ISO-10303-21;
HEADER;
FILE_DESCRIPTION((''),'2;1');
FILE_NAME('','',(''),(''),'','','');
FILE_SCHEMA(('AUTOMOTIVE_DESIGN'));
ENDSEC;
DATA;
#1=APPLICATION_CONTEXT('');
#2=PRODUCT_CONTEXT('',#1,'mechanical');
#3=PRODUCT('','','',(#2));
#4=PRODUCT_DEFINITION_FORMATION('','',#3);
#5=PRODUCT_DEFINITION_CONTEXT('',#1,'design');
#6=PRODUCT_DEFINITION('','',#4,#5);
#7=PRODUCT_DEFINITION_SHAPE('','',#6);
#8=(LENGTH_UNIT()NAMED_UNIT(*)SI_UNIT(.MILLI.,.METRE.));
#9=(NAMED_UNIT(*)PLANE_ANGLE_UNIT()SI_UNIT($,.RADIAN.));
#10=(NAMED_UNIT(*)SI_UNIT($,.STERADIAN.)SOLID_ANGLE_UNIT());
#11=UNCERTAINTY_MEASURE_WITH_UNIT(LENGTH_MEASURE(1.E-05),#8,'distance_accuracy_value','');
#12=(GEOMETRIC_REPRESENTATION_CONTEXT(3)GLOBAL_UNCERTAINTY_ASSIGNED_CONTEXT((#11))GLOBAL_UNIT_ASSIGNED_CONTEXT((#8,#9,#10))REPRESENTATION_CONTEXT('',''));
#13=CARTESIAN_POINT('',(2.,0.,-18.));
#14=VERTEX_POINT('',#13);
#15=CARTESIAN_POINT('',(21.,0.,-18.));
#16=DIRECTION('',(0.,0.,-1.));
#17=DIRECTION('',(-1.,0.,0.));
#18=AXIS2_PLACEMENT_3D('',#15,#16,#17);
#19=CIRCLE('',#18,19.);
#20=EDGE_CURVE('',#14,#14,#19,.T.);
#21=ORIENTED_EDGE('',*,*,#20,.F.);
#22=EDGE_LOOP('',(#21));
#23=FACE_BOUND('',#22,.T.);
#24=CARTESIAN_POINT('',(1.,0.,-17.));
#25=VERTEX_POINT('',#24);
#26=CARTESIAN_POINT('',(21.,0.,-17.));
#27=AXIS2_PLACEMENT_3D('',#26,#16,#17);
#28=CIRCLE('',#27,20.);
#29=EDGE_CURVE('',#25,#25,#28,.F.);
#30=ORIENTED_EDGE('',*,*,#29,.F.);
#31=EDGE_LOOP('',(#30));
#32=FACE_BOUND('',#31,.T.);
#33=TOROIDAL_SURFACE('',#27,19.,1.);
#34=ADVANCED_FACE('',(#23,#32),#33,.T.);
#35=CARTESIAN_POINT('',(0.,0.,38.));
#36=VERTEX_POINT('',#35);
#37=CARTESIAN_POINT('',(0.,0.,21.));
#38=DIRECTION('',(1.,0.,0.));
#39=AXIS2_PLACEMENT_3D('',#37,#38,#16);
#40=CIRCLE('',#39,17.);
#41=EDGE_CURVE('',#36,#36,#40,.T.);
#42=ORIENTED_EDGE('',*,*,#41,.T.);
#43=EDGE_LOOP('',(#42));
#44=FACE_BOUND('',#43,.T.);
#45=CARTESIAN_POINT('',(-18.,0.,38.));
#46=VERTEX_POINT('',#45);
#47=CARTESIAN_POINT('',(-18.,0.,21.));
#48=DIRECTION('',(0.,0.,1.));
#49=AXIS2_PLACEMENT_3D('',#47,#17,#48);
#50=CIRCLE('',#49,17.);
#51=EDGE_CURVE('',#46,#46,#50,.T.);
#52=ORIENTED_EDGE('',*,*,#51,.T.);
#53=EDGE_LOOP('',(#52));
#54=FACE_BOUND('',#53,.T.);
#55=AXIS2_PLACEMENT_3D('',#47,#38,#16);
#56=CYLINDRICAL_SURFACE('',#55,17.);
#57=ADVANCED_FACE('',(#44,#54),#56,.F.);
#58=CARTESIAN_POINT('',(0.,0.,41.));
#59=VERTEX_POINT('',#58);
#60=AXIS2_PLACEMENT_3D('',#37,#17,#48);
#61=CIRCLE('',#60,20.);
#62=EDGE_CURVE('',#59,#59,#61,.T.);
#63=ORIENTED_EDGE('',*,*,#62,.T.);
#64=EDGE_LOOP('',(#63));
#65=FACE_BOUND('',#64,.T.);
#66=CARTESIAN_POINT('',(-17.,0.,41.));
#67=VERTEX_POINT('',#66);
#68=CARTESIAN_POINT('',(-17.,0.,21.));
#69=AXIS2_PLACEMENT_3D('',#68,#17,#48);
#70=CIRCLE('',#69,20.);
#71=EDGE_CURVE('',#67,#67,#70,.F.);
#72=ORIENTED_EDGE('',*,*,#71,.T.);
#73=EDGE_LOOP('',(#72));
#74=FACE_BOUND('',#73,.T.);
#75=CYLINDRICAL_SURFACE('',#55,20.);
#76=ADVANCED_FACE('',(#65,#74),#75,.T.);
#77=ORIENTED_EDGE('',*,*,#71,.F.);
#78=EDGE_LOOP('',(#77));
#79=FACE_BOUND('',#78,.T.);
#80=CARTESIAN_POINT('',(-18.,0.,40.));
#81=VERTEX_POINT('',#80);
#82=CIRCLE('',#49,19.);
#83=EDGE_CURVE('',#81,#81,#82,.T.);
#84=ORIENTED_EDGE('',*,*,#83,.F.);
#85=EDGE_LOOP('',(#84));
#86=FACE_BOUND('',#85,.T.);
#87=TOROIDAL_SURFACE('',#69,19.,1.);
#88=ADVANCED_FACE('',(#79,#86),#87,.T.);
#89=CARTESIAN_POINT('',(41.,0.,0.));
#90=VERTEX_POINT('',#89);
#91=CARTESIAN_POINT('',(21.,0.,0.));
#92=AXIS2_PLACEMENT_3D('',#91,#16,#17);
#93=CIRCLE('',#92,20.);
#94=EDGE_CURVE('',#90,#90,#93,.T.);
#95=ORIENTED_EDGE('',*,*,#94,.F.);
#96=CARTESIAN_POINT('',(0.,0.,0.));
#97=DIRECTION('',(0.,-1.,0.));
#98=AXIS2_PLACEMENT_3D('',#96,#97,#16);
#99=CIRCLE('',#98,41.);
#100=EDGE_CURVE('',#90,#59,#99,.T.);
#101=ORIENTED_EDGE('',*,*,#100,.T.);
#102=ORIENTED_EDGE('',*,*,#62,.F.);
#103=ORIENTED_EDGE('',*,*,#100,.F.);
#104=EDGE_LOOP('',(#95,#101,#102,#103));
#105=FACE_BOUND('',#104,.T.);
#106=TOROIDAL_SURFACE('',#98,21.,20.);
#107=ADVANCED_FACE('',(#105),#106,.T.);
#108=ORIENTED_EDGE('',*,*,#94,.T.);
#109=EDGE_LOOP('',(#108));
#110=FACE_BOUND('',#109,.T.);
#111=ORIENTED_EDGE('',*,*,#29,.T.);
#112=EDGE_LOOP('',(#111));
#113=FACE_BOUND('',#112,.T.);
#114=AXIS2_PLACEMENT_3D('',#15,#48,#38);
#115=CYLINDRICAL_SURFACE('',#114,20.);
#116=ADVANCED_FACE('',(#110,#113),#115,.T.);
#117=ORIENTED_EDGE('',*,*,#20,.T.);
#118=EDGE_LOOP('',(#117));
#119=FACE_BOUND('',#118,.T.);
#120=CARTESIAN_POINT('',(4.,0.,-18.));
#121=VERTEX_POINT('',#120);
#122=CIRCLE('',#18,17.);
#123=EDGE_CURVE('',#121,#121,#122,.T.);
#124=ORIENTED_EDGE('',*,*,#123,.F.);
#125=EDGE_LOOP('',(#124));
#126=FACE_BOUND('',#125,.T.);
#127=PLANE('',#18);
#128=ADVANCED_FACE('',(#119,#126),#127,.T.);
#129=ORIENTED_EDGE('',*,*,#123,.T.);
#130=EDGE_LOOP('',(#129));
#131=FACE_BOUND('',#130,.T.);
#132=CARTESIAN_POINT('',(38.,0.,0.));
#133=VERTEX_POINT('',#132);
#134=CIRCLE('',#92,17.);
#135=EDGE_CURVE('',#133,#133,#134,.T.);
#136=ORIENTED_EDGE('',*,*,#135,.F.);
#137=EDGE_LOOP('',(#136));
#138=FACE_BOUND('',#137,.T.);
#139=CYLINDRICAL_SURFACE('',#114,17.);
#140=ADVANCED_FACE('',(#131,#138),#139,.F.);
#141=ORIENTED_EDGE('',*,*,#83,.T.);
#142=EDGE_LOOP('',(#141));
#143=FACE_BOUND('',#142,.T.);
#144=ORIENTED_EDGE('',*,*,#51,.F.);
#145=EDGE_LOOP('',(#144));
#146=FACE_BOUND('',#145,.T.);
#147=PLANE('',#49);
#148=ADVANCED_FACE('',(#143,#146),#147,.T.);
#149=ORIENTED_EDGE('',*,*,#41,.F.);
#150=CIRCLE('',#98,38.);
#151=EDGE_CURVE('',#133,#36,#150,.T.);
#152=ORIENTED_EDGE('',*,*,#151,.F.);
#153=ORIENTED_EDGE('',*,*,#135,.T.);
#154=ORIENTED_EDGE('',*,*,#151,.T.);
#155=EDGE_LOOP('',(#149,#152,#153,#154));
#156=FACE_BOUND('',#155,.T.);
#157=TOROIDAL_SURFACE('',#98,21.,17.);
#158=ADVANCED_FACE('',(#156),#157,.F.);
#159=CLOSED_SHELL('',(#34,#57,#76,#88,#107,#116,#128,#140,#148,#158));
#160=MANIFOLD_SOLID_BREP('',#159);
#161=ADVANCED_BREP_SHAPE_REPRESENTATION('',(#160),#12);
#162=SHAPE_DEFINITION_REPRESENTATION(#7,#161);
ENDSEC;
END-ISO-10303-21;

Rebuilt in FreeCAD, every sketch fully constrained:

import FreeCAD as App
import Part
import Sketcher
from FreeCAD import Vector
Q = App.Units.Quantity


def edges_at(feature, points):
    """Names of the edges that pass closest to the given points."""
    edges = feature.Shape.Edges
    near = lambda p: min(range(len(edges)), key=lambda i: edges[i].distToShape(Part.Vertex(*p))[0])
    return sorted({f"Edge{near(p) + 1}" for p in points})

doc = App.newDocument("Part")
body = doc.addObject("PartDesign::Body", "Body")

# Sketch on YZ plane
sketch1 = body.newObject("Sketcher::SketchObject", "Sketch")
sketch1.AttachmentSupport = (doc.getObject("YZ_Plane"), [""])
sketch1.MapMode = "FlatFace"
sketch1.addGeometry([
    Part.Circle(Vector(0, 21, 0), Vector(0, 0, 1), 20),
    Part.Circle(Vector(0, 21, 0), Vector(0, 0, 1), 17),
], False)
sketch1.addConstraint([
    Sketcher.Constraint("Coincident", 1, 3, 0, 3),
    Sketcher.Constraint("PointOnObject", 0, 3, -2),
    Sketcher.Constraint("Diameter", 0, Q("40 mm")),
    Sketcher.Constraint("Diameter", 1, Q("34 mm")),
    Sketcher.Constraint("DistanceY", -1, 1, 0, 3, Q("21 mm")),
])
revolution = body.newObject("PartDesign::Revolution", "Revolution")
revolution.Profile = sketch1
revolution.ReferenceAxis = (sketch1, ["H_Axis"])
revolution.Angle = 90

# Sketch on YZ plane
sketch2 = body.newObject("Sketcher::SketchObject", "Sketch001")
sketch2.AttachmentSupport = (doc.getObject("YZ_Plane"), [""])
sketch2.MapMode = "FlatFace"
sketch2.addGeometry([
    Part.Circle(Vector(0, 21, 0), Vector(0, 0, 1), 20),
    Part.Circle(Vector(0, 21, 0), Vector(0, 0, 1), 17),
], False)
sketch2.addConstraint([
    Sketcher.Constraint("Coincident", 1, 3, 0, 3),
    Sketcher.Constraint("PointOnObject", 0, 3, -2),
    Sketcher.Constraint("Diameter", 0, Q("40 mm")),
    Sketcher.Constraint("Diameter", 1, Q("34 mm")),
    Sketcher.Constraint("DistanceY", -1, 1, 0, 3, Q("21 mm")),
])
pad1 = body.newObject("PartDesign::Pad", "Pad")
pad1.Profile = sketch2
pad1.Length = 18
pad1.Reversed = True

# Sketch on XY plane
sketch3 = body.newObject("Sketcher::SketchObject", "Sketch002")
sketch3.AttachmentSupport = (doc.getObject("XY_Plane"), [""])
sketch3.MapMode = "FlatFace"
sketch3.addGeometry([
    Part.Circle(Vector(21, 0, 0), Vector(0, 0, 1), 20),
    Part.Circle(Vector(21, 0, 0), Vector(0, 0, 1), 17),
], False)
sketch3.addConstraint([
    Sketcher.Constraint("Coincident", 1, 3, 0, 3),
    Sketcher.Constraint("PointOnObject", 0, 3, -1),
    Sketcher.Constraint("Diameter", 0, Q("40 mm")),
    Sketcher.Constraint("Diameter", 1, Q("34 mm")),
    Sketcher.Constraint("DistanceX", -1, 1, 0, 3, Q("21 mm")),
])
pad2 = body.newObject("PartDesign::Pad", "Pad001")
pad2.Profile = sketch3
pad2.Length = 18
pad2.Reversed = True
doc.recompute()

fillet = body.newObject("PartDesign::Fillet", "Fillet")
fillet.Base = (pad2, edges_at(pad2, [(1, 0, -18), (-18, 0, 1)]))
fillet.Radius = 1

doc.recompute()
